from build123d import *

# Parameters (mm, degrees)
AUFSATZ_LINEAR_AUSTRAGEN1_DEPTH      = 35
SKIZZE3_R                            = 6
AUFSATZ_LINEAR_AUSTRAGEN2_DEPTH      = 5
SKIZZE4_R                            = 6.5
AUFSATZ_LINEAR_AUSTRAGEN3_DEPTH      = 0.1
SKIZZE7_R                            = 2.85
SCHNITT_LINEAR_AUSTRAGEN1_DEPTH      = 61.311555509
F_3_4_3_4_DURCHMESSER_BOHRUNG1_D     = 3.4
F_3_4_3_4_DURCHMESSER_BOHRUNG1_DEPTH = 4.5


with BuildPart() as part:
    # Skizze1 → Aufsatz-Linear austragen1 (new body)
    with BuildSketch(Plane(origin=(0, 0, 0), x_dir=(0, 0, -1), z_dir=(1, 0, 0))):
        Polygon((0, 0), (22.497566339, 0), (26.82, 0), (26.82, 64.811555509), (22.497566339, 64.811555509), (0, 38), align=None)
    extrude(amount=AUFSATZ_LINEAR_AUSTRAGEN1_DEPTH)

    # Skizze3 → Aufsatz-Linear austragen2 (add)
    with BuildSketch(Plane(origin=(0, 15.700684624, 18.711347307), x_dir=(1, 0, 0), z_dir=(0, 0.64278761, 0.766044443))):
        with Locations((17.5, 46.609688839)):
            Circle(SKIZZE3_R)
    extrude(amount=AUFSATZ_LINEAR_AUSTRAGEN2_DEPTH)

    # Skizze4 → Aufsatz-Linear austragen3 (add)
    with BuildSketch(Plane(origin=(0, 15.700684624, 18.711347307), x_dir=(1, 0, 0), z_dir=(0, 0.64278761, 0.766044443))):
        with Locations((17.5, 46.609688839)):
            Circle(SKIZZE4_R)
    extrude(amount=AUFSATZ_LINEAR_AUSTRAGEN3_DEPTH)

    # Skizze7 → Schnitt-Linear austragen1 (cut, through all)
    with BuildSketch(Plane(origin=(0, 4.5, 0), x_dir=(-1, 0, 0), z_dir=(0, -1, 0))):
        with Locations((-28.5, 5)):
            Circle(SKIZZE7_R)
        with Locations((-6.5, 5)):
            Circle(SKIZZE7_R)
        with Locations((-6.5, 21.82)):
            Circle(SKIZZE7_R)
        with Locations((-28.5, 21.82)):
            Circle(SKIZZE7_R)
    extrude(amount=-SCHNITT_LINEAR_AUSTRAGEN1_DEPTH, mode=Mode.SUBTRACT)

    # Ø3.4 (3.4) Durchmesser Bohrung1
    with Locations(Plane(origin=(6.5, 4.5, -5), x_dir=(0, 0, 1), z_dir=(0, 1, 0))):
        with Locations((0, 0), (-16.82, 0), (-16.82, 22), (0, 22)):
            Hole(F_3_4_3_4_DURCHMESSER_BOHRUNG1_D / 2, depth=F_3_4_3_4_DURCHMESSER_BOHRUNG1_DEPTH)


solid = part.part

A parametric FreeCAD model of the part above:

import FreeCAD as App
import Part
import Sketcher

V = App.Vector
Q = App.Units.Quantity

doc = App.newDocument("Part")
params = doc.addObject("Spreadsheet::Sheet", "Params")
for row, (alias, value) in enumerate([
    ("sketch1_width", "38 mm"),
    ("sketch1_length", "35 mm"),
    ("sketch1_height", "26.82 mm"),
    ("pad1_length", "35 mm"),
    ("sketch2_diameter", "12 mm"),
    ("pad2_length", "5 mm"),
    ("sketch3_diameter", "13 mm"),
    ("pad3_length", "0.1 mm"),
    ("sketch4_diameter", "5.7 mm"),
    ("sketch5_diameter", "3.4 mm"),
    ("hole_diameter", "3.4 mm"),
    ("hole_depth", "4.5 mm"),
], start=1):
    params.set(f"A{row}", alias)
    params.set(f"B{row}", "=" + value)
    params.setAlias(f"B{row}", alias)

body = doc.addObject("PartDesign::Body", "Body")

sketch1 = body.newObject("Sketcher::SketchObject", "Sketch")
sketch1.AttachmentSupport = (doc.getObject("YZ_Plane"), [""])
sketch1.MapMode = "FlatFace"
sketch1.addGeometry(Part.LineSegment(V(0, 0, 0), V(0, -26.8, 0)), False)
sketch1.addGeometry(Part.LineSegment(V(0, -26.8, 0), V(64.8, -26.8, 0)), False)
sketch1.addGeometry(Part.LineSegment(V(64.8, -26.8, 0), V(64.8, -22.5, 0)), False)
sketch1.addGeometry(Part.LineSegment(V(64.8, -22.5, 0), V(38, 0, 0)), False)
sketch1.addGeometry(Part.LineSegment(V(38, 0, 0), V(0, 0, 0)), False)
sketch1.addConstraint(Sketcher.Constraint("Coincident", 0, 2, 1, 1))
sketch1.addConstraint(Sketcher.Constraint("Coincident", 1, 2, 2, 1))
sketch1.addConstraint(Sketcher.Constraint("Coincident", 2, 2, 3, 1))
sketch1.addConstraint(Sketcher.Constraint("Coincident", 3, 2, 4, 1))
sketch1.addConstraint(Sketcher.Constraint("Coincident", 4, 2, 0, 1))
sketch1.addConstraint(Sketcher.Constraint("Vertical", 0))
sketch1.addConstraint(Sketcher.Constraint("Horizontal", 1))
sketch1.addConstraint(Sketcher.Constraint("Vertical", 2))
sketch1.addConstraint(Sketcher.Constraint("Horizontal", 4))
sketch1.addConstraint(Sketcher.Constraint("Coincident", 4, 2, -1, 1))
sketch1.addConstraint(Sketcher.Constraint("DistanceX", 4, 2, 4, 1, Q("38 mm")))
sketch1.addConstraint(Sketcher.Constraint("Angle", 3, Q("140 deg")))
sketch1.addConstraint(Sketcher.Constraint("Distance", 3, Q("35 mm")))
sketch1.addConstraint(Sketcher.Constraint("DistanceY", 0, 2, 0, 1, Q("26.82 mm")))
sketch1.setExpression("Constraints[10]", "Params.sketch1_width")
sketch1.setExpression("Constraints[12]", "Params.sketch1_length")
sketch1.setExpression("Constraints[13]", "Params.sketch1_height")
pad1 = body.newObject("PartDesign::Pad", "Pad")
pad1.Profile = sketch1
pad1.setExpression("Length", "Params.pad1_length")

sketch2 = body.newObject("Sketcher::SketchObject", "Sketch001")
sketch2.Placement = App.Placement(V(0, 15.700685, 18.711347), App.Rotation(V(1, 0, 0), V(0, 0.766044443, -0.64278761), V(0, 0.64278761, 0.766044443), "ZXY"))
sketch2.addGeometry(Part.Circle(V(18, 47, 0), V(0, 0, 1), 6), False)
sketch2.addConstraint(Sketcher.Constraint("Diameter", 0, Q("12 mm")))
sketch2.addConstraint(Sketcher.Constraint("DistanceX", -1, 1, 0, 3, Q("17.5 mm")))
sketch2.addConstraint(Sketcher.Constraint("DistanceY", -1, 1, 0, 3, Q("46.609689 mm")))
sketch2.setExpression("Constraints[0]", "Params.sketch2_diameter")
pad2 = body.newObject("PartDesign::Pad", "Pad001")
pad2.Profile = sketch2
pad2.setExpression("Length", "Params.pad2_length")

sketch3 = body.newObject("Sketcher::SketchObject", "Sketch002")
sketch3.Placement = App.Placement(V(0, 15.700685, 18.711347), App.Rotation(V(1, 0, 0), V(0, 0.766044443, -0.64278761), V(0, 0.64278761, 0.766044443), "ZXY"))
sketch3.addGeometry(Part.Circle(V(18, 47, 0), V(0, 0, 1), 6), False)
sketch3.addConstraint(Sketcher.Constraint("Diameter", 0, Q("13 mm")))
sketch3.addConstraint(Sketcher.Constraint("DistanceX", -1, 1, 0, 3, Q("17.5 mm")))
sketch3.addConstraint(Sketcher.Constraint("DistanceY", -1, 1, 0, 3, Q("46.609689 mm")))
sketch3.setExpression("Constraints[0]", "Params.sketch3_diameter")
pad3 = body.newObject("PartDesign::Pad", "Pad002")
pad3.Profile = sketch3
pad3.setExpression("Length", "Params.pad3_length")

sketch4 = body.newObject("Sketcher::SketchObject", "Sketch003")
sketch4.AttachmentSupport = (doc.getObject("XZ_Plane"), [""])
sketch4.MapMode = "FlatFace"
sketch4.AttachmentOffset = App.Placement(V(0, 0, -4.5), App.Rotation())
sketch4.addGeometry(Part.Circle(V(28.5, -5, 0), V(0, 0, 1), 2.9), False)
sketch4.addGeometry(Part.Circle(V(6.5, -5, 0), V(0, 0, 1), 2.9), False)
sketch4.addGeometry(Part.Circle(V(6.5, -21.8, 0), V(0, 0, 1), 2.9), False)
sketch4.addGeometry(Part.Circle(V(28.5, -21.8, 0), V(0, 0, 1), 2.9), False)
sketch4.addConstraint(Sketcher.Constraint("Equal", 0, 1))
sketch4.addConstraint(Sketcher.Constraint("Equal", 1, 2))
sketch4.addConstraint(Sketcher.Constraint("Equal", 2, 3))
sketch4.addConstraint(Sketcher.Constraint("Horizontal", 0, 3, 1, 3))
sketch4.addConstraint(Sketcher.Constraint("Horizontal", 2, 3, 3, 3))
sketch4.addConstraint(Sketcher.Constraint("Vertical", 1, 3, 2, 3))
sketch4.addConstraint(Sketcher.Constraint("Vertical", 0, 3, 3, 3))
sketch4.addConstraint(Sketcher.Constraint("Diameter", 0, Q("5.7 mm")))
sketch4.addConstraint(Sketcher.Constraint("DistanceY", 0, 3, -1, 1, Q("5 mm")))
sketch4.addConstraint(Sketcher.Constraint("DistanceX", 1, 3, 0, 3, Q("22 mm")))
sketch4.addConstraint(Sketcher.Constraint("DistanceX", -1, 1, 0, 3, Q("28.5 mm")))
sketch4.addConstraint(Sketcher.Constraint("DistanceY", 2, 3, -1, 1, Q("21.82 mm")))
sketch4.setExpression("Constraints[7]", "Params.sketch4_diameter")
pocket1 = body.newObject("PartDesign::Pocket", "Pocket")
pocket1.Profile = sketch4
pocket1.Type = "ThroughAll"

sketch5 = body.newObject("Sketcher::SketchObject", "Sketch004")
sketch5.AttachmentSupport = (doc.getObject("XZ_Plane"), [""])
sketch5.MapMode = "FlatFace"
sketch5.AttachmentOffset = App.Placement(V(0, 0, -4.5), App.Rotation())
sketch5.addGeometry(Part.Circle(V(6.5, -5, 0), V(0, 0, 1), 1.7), False)
sketch5.addGeometry(Part.Circle(V(6.5, -21.8, 0), V(0, 0, 1), 1.7), False)
sketch5.addGeometry(Part.Circle(V(28.5, -21.8, 0), V(0, 0, 1), 1.7), False)
sketch5.addGeometry(Part.Circle(V(28.5, -5, 0), V(0, 0, 1), 1.7), False)
sketch5.addConstraint(Sketcher.Constraint("Equal", 0, 1))
sketch5.addConstraint(Sketcher.Constraint("Equal", 1, 2))
sketch5.addConstraint(Sketcher.Constraint("Equal", 2, 3))
sketch5.addConstraint(Sketcher.Constraint("Horizontal", 1, 3, 2, 3))
sketch5.addConstraint(Sketcher.Constraint("Horizontal", 0, 3, 3, 3))
sketch5.addConstraint(Sketcher.Constraint("Vertical", 0, 3, 1, 3))
sketch5.addConstraint(Sketcher.Constraint("Vertical", 2, 3, 3, 3))
sketch5.addConstraint(Sketcher.Constraint("Diameter", 0, Q("3.4 mm")))
sketch5.addConstraint(Sketcher.Constraint("DistanceY", 0, 3, -1, 1, Q("5 mm")))
sketch5.addConstraint(Sketcher.Constraint("DistanceX", 1, 3, 2, 3, Q("22 mm")))
sketch5.addConstraint(Sketcher.Constraint("DistanceX", -1, 1, 0, 3, Q("6.5 mm")))
sketch5.addConstraint(Sketcher.Constraint("DistanceY", 1, 3, -1, 1, Q("21.82 mm")))
sketch5.setExpression("Constraints[7]", "Params.sketch5_diameter")
doc.recompute()
hole = body.newObject("PartDesign::Hole", "Hole")
hole.Profile = sketch5
hole.ThreadType = "None"
hole.setExpression("Diameter", "Params.hole_diameter")
hole.DepthType = "Dimension"
hole.setExpression("Depth", "Params.hole_depth")
hole.DrillPoint = "Flat"
hole.Reversed = True

doc.recompute()
